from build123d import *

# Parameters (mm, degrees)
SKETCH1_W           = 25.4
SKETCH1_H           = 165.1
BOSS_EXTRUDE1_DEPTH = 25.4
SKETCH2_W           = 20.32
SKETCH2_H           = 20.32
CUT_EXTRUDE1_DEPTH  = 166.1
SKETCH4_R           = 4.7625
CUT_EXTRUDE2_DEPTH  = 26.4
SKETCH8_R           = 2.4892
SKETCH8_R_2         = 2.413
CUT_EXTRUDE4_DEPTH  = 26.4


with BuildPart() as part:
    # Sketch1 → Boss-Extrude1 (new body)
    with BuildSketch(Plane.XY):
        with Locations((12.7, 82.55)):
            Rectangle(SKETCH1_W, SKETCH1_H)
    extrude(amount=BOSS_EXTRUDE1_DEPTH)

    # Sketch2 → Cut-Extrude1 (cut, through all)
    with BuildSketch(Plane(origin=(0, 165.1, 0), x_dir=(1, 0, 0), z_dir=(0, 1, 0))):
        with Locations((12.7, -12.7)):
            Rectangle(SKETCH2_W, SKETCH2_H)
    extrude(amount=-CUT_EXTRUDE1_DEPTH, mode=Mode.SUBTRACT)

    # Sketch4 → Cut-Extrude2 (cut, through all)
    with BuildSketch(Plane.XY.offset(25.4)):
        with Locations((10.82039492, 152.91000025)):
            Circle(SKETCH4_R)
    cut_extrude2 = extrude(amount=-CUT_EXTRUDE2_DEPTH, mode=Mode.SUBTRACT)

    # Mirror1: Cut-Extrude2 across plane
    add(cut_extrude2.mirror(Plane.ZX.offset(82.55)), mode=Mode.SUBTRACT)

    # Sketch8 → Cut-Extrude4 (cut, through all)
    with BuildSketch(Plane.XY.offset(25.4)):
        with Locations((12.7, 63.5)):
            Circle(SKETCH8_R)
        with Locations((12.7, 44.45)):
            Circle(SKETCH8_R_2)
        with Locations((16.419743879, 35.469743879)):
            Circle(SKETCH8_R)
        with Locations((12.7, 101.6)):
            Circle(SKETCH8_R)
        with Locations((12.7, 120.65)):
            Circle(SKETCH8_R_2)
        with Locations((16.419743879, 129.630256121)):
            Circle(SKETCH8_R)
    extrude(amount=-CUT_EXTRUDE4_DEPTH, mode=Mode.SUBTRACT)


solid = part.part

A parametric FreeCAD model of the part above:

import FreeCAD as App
import Part
import Sketcher

V = App.Vector
Q = App.Units.Quantity


def add_polygon(sketch, points):
    """Adds a closed chain of lines whose ends are joined by coincident constraints."""
    first, n = sketch.GeometryCount, len(points)
    for a, b in zip(points, points[1:] + points[:1]):
        sketch.addGeometry(Part.LineSegment(App.Vector(*a, 0), App.Vector(*b, 0)), False)
    for i in range(n):
        sketch.addConstraint(Sketcher.Constraint("Coincident", first + i, 2, first + (i + 1) % n, 1))

doc = App.newDocument("Part")
body = doc.addObject("PartDesign::Body", "Body")

sketch1 = doc.addObject("Sketcher::SketchObject", "Sketch")
body.addObject(sketch1)
sketch1.AttachmentSupport = (doc.XY_Plane, [""])
sketch1.MapMode = "FlatFace"
add_polygon(sketch1, [(0, 165), (0, 0), (25, 0), (25, 165)])
sketch1.addConstraint([
    Sketcher.Constraint("Vertical", 0),
    Sketcher.Constraint("Horizontal", 1),
    Sketcher.Constraint("Vertical", 2),
    Sketcher.Constraint("Horizontal", 3),
    Sketcher.Constraint("Coincident", 0, 2, -1, 1),
    Sketcher.Constraint("DistanceX", 1, 1, 1, 2, Q("1 in")),
    Sketcher.Constraint("DistanceY", 0, 2, 0, 1, Q("6.5 in")),
])
pad1 = doc.addObject("PartDesign::Pad", "Pad")
body.addObject(pad1)
pad1.Profile = sketch1
pad1.Length = Q("1 in")

sketch2 = doc.addObject("Sketcher::SketchObject", "Sketch001")
body.addObject(sketch2)
sketch2.AttachmentSupport = (doc.XZ_Plane, [""])
sketch2.MapMode = "FlatFace"
sketch2.AttachmentOffset = App.Placement(V(0, 0, -6.5 * 25.4), App.Rotation())
add_polygon(sketch2, [(3, 3), (3, 23), (23, 23), (23, 3)])
sketch2.addConstraint([
    Sketcher.Constraint("Vertical", 0),
    Sketcher.Constraint("Horizontal", 1),
    Sketcher.Constraint("Vertical", 2),
    Sketcher.Constraint("Horizontal", 3),
    Sketcher.Constraint("Equal", 3, 0),
    Sketcher.Constraint("DistanceX", 1, 1, 1, 2, Q("0.8 in")),
    Sketcher.Constraint("DistanceX", -1, 1, 0, 2, Q("0.1 in")),
    Sketcher.Constraint("DistanceY", -1, 1, 0, 2, Q("0.9 in")),
])
pocket1 = doc.addObject("PartDesign::Pocket", "Pocket")
body.addObject(pocket1)
pocket1.Profile = sketch2
pocket1.Type = "ThroughAll"
pocket1.Reversed = True

sketch3 = doc.addObject("Sketcher::SketchObject", "Sketch002")
body.addObject(sketch3)
sketch3.AttachmentSupport = (doc.XY_Plane, [""])
sketch3.MapMode = "FlatFace"
sketch3.AttachmentOffset = App.Placement(V(0, 0, 1 * 25.4), App.Rotation())
sketch3.addGeometry(Part.Circle(V(10.8, 152.9, 0), V(0, 0, 1), 4.8), False)
sketch3.addConstraint([
    Sketcher.Constraint("Diameter", 0, Q("0.375 in")),
    Sketcher.Constraint("DistanceX", -1, 1, 0, 3, Q("0.4259998 in")),
    Sketcher.Constraint("DistanceY", -1, 1, 0, 3, 152.91),
])
pocket2 = doc.addObject("PartDesign::Pocket", "Pocket001")
body.addObject(pocket2)
pocket2.Profile = sketch3
pocket2.Type = "ThroughAll"
doc.recompute()

datumplane = doc.addObject("PartDesign::Plane", "DatumPlane")
body.addObject(datumplane)
datumplane.AttachmentSupport = (doc.XZ_Plane, [""])
datumplane.MapMode = "FlatFace"
datumplane.AttachmentOffset = App.Placement(V(0, 0, -3.25 * 25.4), App.Rotation())
mirrored = doc.addObject("PartDesign::Mirrored", "Mirrored")
body.addObject(mirrored)
mirrored.Originals = [pocket2]
mirrored.MirrorPlane = (datumplane, [""])
body.Tip = mirrored

sketch4 = doc.addObject("Sketcher::SketchObject", "Sketch003")
body.addObject(sketch4)
sketch4.AttachmentSupport = (doc.XY_Plane, [""])
sketch4.MapMode = "FlatFace"
sketch4.AttachmentOffset = App.Placement(V(0, 0, 1 * 25.4), App.Rotation())
sketch4.addGeometry([
    Part.Circle(V(12.7, 63.5, 0), V(0, 0, 1), 2.5),
    Part.Circle(V(12.7, 44.5, 0), V(0, 0, 1), 2.4),
    Part.Circle(V(16.4, 35.5, 0), V(0, 0, 1), 2.5),
    Part.Circle(V(12.7, 101.6, 0), V(0, 0, 1), 2.5),
    Part.Circle(V(12.7, 120.7, 0), V(0, 0, 1), 2.4),
    Part.Circle(V(16.4, 129.6, 0), V(0, 0, 1), 2.5),
], False)
sketch4.addConstraint([
    Sketcher.Constraint("Equal", 0, 2),
    Sketcher.Constraint("Equal", 2, 3),
    Sketcher.Constraint("Equal", 1, 4),
    Sketcher.Constraint("Equal", 3, 5),
    Sketcher.Constraint("Vertical", 0, 3, 1, 3),
    Sketcher.Constraint("Vertical", 1, 3, 3, 3),
    Sketcher.Constraint("Vertical", 3, 3, 4, 3),
    Sketcher.Constraint("Vertical", 2, 3, 5, 3),
    Sketcher.Constraint("Diameter", 1, Q("0.19 in")),
    Sketcher.Constraint("Diameter", 0, Q("0.196 in")),
    Sketcher.Constraint("DistanceY", -1, 1, 3, 3, Q("4 in")),
    Sketcher.Constraint("DistanceY", 1, 3, 4, 3, Q("3 in")),
    Sketcher.Constraint("DistanceX", -1, 1, 0, 3, Q("0.5 in")),
    Sketcher.Constraint("DistanceY", -1, 1, 0, 3, Q("2.5 in")),
    Sketcher.Constraint("DistanceY", -1, 1, 1, 3, Q("1.75 in")),
    Sketcher.Constraint("DistanceX", -1, 1, 2, 3, 16.419744),
    Sketcher.Constraint("DistanceY", -1, 1, 2, 3, 35.469744),
    Sketcher.Constraint("DistanceY", -1, 1, 5, 3, 129.630256),
])
pocket3 = doc.addObject("PartDesign::Pocket", "Pocket002")
body.addObject(pocket3)
pocket3.Profile = sketch4
pocket3.Type = "ThroughAll"

doc.recompute()
